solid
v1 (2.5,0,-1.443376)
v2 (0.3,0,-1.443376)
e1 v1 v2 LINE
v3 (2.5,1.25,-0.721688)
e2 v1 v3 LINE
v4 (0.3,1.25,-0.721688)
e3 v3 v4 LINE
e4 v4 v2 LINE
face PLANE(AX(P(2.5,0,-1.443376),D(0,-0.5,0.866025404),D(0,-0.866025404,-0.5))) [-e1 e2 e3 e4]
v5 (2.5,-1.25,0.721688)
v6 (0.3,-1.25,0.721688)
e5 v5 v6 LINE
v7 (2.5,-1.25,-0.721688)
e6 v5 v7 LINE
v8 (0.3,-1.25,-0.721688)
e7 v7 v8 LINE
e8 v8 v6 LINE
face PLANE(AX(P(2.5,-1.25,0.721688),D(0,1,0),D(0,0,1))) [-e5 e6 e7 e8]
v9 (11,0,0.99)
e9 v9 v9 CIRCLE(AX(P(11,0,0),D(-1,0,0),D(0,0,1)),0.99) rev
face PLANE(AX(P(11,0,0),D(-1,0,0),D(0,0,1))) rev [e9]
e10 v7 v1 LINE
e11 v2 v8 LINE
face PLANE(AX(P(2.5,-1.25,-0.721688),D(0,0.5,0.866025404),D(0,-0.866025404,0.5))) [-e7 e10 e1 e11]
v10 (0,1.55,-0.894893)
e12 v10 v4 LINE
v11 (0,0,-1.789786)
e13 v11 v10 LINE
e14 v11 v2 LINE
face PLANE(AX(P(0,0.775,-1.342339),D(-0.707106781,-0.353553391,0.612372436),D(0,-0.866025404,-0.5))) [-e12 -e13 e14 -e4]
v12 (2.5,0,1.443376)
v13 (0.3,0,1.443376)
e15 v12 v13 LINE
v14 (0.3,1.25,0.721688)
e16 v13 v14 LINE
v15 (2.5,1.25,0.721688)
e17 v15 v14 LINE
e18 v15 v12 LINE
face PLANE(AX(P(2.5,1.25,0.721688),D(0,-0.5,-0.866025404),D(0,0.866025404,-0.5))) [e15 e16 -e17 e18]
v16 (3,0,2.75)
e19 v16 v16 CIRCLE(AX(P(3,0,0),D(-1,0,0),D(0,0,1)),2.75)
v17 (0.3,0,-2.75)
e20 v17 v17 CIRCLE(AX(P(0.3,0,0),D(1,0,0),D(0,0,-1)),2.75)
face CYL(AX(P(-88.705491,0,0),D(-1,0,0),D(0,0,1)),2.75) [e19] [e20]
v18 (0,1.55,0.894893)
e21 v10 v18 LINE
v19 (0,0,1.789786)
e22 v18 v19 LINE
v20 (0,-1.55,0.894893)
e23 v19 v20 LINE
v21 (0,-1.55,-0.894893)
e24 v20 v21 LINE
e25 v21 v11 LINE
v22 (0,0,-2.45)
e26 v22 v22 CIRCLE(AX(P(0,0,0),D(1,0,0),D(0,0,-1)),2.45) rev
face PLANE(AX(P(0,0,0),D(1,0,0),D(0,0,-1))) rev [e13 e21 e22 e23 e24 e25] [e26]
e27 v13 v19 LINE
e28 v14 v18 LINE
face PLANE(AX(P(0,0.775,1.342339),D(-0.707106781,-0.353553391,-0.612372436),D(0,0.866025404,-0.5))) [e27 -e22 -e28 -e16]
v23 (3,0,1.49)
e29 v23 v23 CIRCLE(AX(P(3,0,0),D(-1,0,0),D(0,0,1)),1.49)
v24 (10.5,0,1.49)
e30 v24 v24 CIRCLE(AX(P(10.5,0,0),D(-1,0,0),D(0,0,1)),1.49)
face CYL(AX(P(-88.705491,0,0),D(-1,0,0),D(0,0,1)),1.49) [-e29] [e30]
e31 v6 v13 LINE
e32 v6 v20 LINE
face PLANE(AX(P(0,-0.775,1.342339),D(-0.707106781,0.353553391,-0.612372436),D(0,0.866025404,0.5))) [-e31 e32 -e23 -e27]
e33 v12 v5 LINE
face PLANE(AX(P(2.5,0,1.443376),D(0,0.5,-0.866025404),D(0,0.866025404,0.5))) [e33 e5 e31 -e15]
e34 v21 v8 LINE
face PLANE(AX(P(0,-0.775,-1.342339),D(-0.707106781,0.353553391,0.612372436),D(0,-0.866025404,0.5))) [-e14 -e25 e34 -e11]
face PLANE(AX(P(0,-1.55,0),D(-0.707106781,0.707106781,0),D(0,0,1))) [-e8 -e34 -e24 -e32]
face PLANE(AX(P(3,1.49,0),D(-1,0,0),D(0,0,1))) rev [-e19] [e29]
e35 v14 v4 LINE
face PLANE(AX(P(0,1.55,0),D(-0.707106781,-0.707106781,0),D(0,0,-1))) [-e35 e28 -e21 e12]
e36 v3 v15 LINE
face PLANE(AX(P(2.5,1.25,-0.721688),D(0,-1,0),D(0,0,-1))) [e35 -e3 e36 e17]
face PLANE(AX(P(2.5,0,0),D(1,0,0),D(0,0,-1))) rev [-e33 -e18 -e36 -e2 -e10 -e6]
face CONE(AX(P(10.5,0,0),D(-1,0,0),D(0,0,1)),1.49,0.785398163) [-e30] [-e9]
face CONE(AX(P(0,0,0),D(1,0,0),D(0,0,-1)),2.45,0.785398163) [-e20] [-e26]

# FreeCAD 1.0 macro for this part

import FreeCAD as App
import Part
import Sketcher

V = App.Vector
Q = App.Units.Quantity


def edges_at(feature, points):
    """Names of the edges that pass closest to the given points."""
    edges = feature.Shape.Edges
    near = lambda p: min(range(len(edges)), key=lambda i: edges[i].distToShape(Part.Vertex(*p))[0])
    return sorted({f"Edge{near(p) + 1}" for p in points})

doc = App.newDocument("Part")
body = doc.addObject("PartDesign::Body", "Body")

# Sketch on XY plane
sketch1 = doc.addObject("Sketcher::SketchObject", "Sketch")
body.addObject(sketch1)
sketch1.AttachmentSupport = (doc.XY_Plane, [""])
sketch1.MapMode = "FlatFace"
sketch1.addGeometry([
    Part.LineSegment(V(0, 2.8, 0), V(0, 0, 0)),  # 0
    Part.LineSegment(V(0, 0, 0), V(11, 0, 0)),  # 1
    Part.LineSegment(V(11, 0, 0), V(11, 1.5, 0)),  # 2
    Part.LineSegment(V(11, 1.5, 0), V(3, 1.5, 0)),  # 3
    Part.LineSegment(V(3, 1.5, 0), V(3, 2.8, 0)),  # 4
    Part.LineSegment(V(3, 2.8, 0), V(0, 2.8, 0)),  # 5
], False)
sketch1.addConstraint([
    Sketcher.Constraint("Coincident", 0, 2, 1, 1),
    Sketcher.Constraint("Coincident", 1, 2, 2, 1),
    Sketcher.Constraint("Coincident", 2, 2, 3, 1),
    Sketcher.Constraint("Coincident", 3, 2, 4, 1),
    Sketcher.Constraint("Coincident", 4, 2, 5, 1),
    Sketcher.Constraint("Coincident", 5, 2, 0, 1),
    Sketcher.Constraint("Vertical", 0),
    Sketcher.Constraint("Horizontal", 1),
    Sketcher.Constraint("Vertical", 2),
    Sketcher.Constraint("Horizontal", 3),
    Sketcher.Constraint("Vertical", 4),
    Sketcher.Constraint("Horizontal", 5),
    Sketcher.Constraint("Coincident", 0, 2, -1, 1),
    Sketcher.Constraint("DistanceX", 1, 1, 1, 2, 11.0),
    Sketcher.Constraint("DistanceX", 3, 2, 3, 1, 8.0),
    Sketcher.Constraint("DistanceY", 0, 2, 0, 1, 2.75),
    Sketcher.Constraint("DistanceY", 2, 1, 2, 2, 1.49),
])
revolution = doc.addObject("PartDesign::Revolution", "Revolution")
body.addObject(revolution)
revolution.Profile = sketch1
revolution.ReferenceAxis = (sketch1, ["H_Axis"])
revolution.Angle = 360
doc.recompute()

chamfer = doc.addObject("PartDesign::Chamfer", "Chamfer")
body.addObject(chamfer)
chamfer.Base = (revolution, edges_at(revolution, [(11, -1.49, 0)]))
chamfer.Size = 0.5
doc.recompute()

chamfer2 = doc.addObject("PartDesign::Chamfer", "Chamfer001")
body.addObject(chamfer2)
chamfer2.Base = (chamfer, edges_at(chamfer, [(0, -2.75, 0)]))
chamfer2.Size = 0.3

# Sketch on YZ plane
sketch2 = doc.addObject("Sketcher::SketchObject", "Sketch001")
body.addObject(sketch2)
sketch2.AttachmentSupport = (doc.YZ_Plane, [""])
sketch2.MapMode = "FlatFace"
sketch2.addGeometry([
    Part.LineSegment(V(0, 1.4, 0), V(-1.2, 0.7, 0)),  # 0
    Part.LineSegment(V(-1.2, 0.7, 0), V(-1.2, -0.7, 0)),  # 1
    Part.LineSegment(V(-1.2, -0.7, 0), V(0, -1.4, 0)),  # 2
    Part.LineSegment(V(0, -1.4, 0), V(1.2, -0.7, 0)),  # 3
    Part.LineSegment(V(1.2, -0.7, 0), V(1.2, 0.7, 0)),  # 4
    Part.LineSegment(V(1.2, 0.7, 0), V(0, 1.4, 0)),  # 5
], False)
sketch2.addConstraint([
    Sketcher.Constraint("Coincident", 0, 2, 1, 1),
    Sketcher.Constraint("Coincident", 1, 2, 2, 1),
    Sketcher.Constraint("Coincident", 2, 2, 3, 1),
    Sketcher.Constraint("Coincident", 3, 2, 4, 1),
    Sketcher.Constraint("Coincident", 4, 2, 5, 1),
    Sketcher.Constraint("Coincident", 5, 2, 0, 1),
    Sketcher.Constraint("Vertical", 1),
    Sketcher.Constraint("Vertical", 4),
    Sketcher.Constraint("Symmetric", 0, 2, 3, 2, -1, 1),
    Sketcher.Constraint("Symmetric", 2, 2, 5, 2, -1, 1),
    Sketcher.Constraint("PointOnObject", 2, 2, -2),
    Sketcher.Constraint("Parallel", 2, 5),
    Sketcher.Constraint("Horizontal", 1, 2, 3, 2),
    Sketcher.Constraint("Angle", 0, Q("-150 deg")),
    Sketcher.Constraint("DistanceX", 1, 2, 3, 2, 2.5),
    Sketcher.Constraint("DistanceY", 1, 2, 1, 1, 1.443376),
])
pocket1 = doc.addObject("PartDesign::Pocket", "Pocket")
body.addObject(pocket1)
pocket1.Profile = sketch2
pocket1.Length = 2.5
pocket1.Reversed = True
doc.recompute()

chamfer3 = doc.addObject("PartDesign::Chamfer", "Chamfer002")
body.addObject(chamfer3)
chamfer3.Base = (pocket1, edges_at(pocket1, [
    (0, 0.625, 1.083),
    (0, -0.625, 1.083),
    (0, -1.25, 0),
    (0, -0.625, -1.083),
    (0, 0.625, -1.083),
    (0, 1.25, 0),
]))
chamfer3.Size = 0.3

doc.recompute()
